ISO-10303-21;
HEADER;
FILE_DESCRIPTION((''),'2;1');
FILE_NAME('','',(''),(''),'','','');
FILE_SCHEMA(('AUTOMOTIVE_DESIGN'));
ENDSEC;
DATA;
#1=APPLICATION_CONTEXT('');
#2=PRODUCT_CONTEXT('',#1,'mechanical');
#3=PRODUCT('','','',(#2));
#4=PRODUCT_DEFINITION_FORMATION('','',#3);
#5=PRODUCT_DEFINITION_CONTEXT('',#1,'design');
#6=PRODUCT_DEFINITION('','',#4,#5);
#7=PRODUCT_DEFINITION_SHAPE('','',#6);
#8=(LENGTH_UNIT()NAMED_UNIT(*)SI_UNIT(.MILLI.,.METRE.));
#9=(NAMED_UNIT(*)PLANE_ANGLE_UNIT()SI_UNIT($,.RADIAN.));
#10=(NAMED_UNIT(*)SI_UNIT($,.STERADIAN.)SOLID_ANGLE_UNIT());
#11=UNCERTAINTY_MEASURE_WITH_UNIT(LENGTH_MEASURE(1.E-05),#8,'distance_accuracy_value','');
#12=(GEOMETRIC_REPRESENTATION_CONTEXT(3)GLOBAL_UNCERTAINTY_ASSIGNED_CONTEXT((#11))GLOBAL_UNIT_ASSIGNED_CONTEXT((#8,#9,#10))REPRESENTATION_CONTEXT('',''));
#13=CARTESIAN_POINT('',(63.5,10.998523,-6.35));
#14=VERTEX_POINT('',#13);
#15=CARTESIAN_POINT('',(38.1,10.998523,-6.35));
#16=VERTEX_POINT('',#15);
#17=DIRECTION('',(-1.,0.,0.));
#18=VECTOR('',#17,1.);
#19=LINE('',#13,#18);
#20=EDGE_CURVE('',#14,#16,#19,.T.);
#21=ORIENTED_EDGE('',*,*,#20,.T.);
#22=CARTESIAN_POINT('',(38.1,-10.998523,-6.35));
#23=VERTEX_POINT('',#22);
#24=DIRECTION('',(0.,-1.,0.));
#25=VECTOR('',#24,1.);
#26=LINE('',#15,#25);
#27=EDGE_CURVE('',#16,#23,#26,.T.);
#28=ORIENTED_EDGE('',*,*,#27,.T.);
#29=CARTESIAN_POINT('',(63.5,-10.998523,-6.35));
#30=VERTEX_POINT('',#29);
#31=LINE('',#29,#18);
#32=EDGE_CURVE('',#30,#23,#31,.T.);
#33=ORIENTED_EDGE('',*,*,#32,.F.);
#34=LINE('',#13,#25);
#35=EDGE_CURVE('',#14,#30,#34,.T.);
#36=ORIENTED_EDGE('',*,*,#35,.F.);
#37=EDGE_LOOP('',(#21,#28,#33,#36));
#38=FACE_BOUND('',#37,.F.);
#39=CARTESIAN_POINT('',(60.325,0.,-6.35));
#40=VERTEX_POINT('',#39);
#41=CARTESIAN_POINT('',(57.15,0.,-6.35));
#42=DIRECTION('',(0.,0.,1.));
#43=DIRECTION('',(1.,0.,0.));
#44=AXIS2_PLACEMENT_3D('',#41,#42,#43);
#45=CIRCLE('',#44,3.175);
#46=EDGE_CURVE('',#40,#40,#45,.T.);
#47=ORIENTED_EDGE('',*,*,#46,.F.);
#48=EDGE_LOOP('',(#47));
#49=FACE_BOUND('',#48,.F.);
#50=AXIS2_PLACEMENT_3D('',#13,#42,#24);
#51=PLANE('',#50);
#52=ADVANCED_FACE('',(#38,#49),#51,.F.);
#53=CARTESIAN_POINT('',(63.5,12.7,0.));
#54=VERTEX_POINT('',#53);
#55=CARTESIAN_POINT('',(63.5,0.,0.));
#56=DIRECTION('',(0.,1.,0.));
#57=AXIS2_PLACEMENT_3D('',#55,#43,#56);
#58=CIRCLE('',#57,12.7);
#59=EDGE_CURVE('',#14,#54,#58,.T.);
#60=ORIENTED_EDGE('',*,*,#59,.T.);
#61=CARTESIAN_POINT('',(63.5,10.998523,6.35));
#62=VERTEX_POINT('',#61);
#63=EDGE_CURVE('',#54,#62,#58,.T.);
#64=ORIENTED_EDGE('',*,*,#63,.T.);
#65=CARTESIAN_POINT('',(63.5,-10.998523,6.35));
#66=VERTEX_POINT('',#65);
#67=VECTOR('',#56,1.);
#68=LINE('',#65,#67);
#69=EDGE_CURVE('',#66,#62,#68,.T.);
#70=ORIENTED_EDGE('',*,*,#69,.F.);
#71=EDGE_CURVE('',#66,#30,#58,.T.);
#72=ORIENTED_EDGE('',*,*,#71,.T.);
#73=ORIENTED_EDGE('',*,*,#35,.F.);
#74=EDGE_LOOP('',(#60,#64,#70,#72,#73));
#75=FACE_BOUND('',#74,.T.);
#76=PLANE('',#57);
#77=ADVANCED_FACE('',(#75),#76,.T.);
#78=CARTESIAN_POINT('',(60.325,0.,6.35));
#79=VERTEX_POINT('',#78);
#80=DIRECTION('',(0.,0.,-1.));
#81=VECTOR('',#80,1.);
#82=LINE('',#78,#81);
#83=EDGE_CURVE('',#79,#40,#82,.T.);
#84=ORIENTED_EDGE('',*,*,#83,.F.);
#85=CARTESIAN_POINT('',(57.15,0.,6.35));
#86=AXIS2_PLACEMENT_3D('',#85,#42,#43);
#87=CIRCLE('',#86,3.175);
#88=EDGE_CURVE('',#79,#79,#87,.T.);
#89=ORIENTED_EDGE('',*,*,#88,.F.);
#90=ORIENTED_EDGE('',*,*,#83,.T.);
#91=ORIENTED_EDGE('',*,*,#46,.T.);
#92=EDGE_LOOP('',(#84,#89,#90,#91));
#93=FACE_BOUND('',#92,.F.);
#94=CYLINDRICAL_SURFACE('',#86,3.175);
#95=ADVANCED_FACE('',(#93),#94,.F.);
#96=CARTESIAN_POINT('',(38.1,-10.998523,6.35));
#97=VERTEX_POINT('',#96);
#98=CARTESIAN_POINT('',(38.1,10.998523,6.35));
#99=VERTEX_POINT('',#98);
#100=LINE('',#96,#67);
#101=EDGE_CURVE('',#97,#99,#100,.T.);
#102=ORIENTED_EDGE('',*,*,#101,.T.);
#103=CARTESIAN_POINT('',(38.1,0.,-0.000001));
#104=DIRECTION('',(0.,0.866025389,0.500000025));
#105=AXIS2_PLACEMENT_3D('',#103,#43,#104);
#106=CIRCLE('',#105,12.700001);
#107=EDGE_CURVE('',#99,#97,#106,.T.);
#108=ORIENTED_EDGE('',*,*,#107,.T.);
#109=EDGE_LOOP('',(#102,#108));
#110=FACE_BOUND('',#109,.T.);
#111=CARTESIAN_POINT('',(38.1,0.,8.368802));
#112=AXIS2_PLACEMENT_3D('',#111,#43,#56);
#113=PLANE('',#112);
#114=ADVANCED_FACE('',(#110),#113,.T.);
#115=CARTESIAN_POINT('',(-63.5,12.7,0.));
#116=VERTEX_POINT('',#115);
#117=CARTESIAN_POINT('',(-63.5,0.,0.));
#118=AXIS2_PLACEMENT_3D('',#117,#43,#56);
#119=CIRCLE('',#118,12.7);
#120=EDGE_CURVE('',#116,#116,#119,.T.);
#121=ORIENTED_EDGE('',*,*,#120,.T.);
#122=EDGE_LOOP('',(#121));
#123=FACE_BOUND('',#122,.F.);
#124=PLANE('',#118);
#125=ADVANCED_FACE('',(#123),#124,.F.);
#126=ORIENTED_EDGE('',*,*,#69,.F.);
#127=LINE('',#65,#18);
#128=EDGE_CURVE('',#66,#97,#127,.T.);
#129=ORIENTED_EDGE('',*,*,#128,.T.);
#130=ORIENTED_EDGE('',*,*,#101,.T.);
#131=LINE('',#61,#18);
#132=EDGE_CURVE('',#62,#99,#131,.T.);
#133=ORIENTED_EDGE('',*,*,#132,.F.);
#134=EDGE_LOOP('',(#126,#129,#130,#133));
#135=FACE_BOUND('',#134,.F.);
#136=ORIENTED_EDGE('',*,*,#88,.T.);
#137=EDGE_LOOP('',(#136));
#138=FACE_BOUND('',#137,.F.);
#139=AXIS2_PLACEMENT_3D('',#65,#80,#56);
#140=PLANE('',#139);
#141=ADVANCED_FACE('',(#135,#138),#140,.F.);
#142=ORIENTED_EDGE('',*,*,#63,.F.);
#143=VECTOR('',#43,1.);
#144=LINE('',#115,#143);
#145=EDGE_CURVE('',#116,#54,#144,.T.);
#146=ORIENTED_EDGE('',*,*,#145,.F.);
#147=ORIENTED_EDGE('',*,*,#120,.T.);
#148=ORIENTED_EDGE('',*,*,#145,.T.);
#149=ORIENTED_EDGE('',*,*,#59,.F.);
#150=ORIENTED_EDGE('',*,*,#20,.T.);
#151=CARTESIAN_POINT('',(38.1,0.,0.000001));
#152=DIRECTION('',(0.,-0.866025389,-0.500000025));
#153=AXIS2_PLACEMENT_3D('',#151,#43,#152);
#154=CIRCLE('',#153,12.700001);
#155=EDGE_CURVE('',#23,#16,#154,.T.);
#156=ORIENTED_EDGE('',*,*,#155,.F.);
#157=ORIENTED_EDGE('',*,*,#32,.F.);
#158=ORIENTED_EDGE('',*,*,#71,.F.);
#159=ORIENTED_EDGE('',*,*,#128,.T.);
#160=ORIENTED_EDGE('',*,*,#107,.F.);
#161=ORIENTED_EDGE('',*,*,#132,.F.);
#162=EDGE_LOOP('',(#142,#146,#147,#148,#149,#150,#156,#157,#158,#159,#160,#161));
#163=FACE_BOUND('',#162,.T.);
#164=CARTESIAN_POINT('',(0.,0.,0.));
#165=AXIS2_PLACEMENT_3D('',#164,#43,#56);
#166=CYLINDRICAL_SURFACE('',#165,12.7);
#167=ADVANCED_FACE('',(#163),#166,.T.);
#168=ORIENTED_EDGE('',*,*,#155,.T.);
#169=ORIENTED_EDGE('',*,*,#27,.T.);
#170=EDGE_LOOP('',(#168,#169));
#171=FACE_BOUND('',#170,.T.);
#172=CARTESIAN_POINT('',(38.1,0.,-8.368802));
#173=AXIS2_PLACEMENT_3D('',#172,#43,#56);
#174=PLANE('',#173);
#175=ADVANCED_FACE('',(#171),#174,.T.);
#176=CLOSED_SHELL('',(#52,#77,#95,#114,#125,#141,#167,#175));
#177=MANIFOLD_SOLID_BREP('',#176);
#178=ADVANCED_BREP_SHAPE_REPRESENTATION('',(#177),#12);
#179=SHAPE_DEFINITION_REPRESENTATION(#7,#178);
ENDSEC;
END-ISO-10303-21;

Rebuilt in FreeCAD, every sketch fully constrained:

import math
import FreeCAD as App
import Part
import Sketcher

V = App.Vector
Q = App.Units.Quantity

doc = App.newDocument("Part")
params = doc.addObject("Spreadsheet::Sheet", "Params")
for row, (alias, value) in enumerate([
    ("sketch1_diameter", "1 in"),
    ("pad1_length", "5 in"),
    ("sketch2_radius", "0.5 in"),
    ("pocket1_length", "1 in"),
    ("sketch3_diameter", "0.25 in"),
], start=1):
    params.set(f"A{row}", alias)
    params.set(f"B{row}", "=" + value)
    params.setAlias(f"B{row}", alias)

body = doc.addObject("PartDesign::Body", "Body")

# Sketch on YZ plane
sketch1 = doc.addObject("Sketcher::SketchObject", "Sketch")
body.addObject(sketch1)
sketch1.AttachmentSupport = (doc.YZ_Plane, [""])
sketch1.MapMode = "FlatFace"
sketch1.addGeometry(Part.Circle(V(0, 0, 0), V(0, 0, 1), 12.7), False)
sketch1.addConstraint([
    Sketcher.Constraint("Coincident", 0, 3, -1, 1),
    Sketcher.Constraint("Diameter", 0, Q("1 in")),
])
sketch1.setExpression("Constraints[1]", "Params.sketch1_diameter")
pad1 = doc.addObject("PartDesign::Pad", "Pad")
body.addObject(pad1)
pad1.Profile = sketch1
pad1.setExpression("Length", "Params.pad1_length")
pad1.Midplane = True

# Sketch on YZ plane
sketch2 = doc.addObject("Sketcher::SketchObject", "Sketch001")
body.addObject(sketch2)
sketch2.AttachmentSupport = (doc.YZ_Plane, [""])
sketch2.MapMode = "FlatFace"
sketch2.AttachmentOffset = App.Placement(V(0, 0, 2.5 * 25.4), App.Rotation())
sketch2.addGeometry([
    Part.LineSegment(V(10.998523, -6.35, 0), V(-10.998523, -6.35, 0)),
    Part.ArcOfCircle(Part.Circle(V(0, 0.000001, 0), V(0, 0, 1), 12.700001), math.radians(-149.999998), math.radians(-30.000002)),
    Part.ArcOfCircle(Part.Circle(V(0, -0.000001, 0), V(0, 0, 1), 12.700001), math.radians(30.000002), math.radians(149.999998)),
    Part.LineSegment(V(-10.998523, 6.35, 0), V(10.998523, 6.35, 0)),
], False)
sketch2.addConstraint([
    Sketcher.Constraint("Coincident", 0, 1, 1, 2),
    Sketcher.Constraint("Coincident", 1, 1, 0, 2),
    Sketcher.Constraint("Coincident", 2, 1, 3, 2),
    Sketcher.Constraint("Coincident", 3, 1, 2, 2),
    Sketcher.Constraint("Horizontal", 0),
    Sketcher.Constraint("Horizontal", 3),
    Sketcher.Constraint("Coincident", 1, 3, -1, 1),
    Sketcher.Constraint("Coincident", 2, 3, -1, 1),
    Sketcher.Constraint("Equal", 1, 2),
    Sketcher.Constraint("Vertical", 0, 1, 2, 1),
    Sketcher.Constraint("Radius", 1, Q("0.5 in")),
    Sketcher.Constraint("DistanceY", 0, 1, 2, 1, Q("0.5 in")),
])
sketch2.setExpression("Constraints[10]", "Params.sketch2_radius")
pocket1 = doc.addObject("PartDesign::Pocket", "Pocket")
body.addObject(pocket1)
pocket1.Profile = sketch2
pocket1.setExpression("Length", "Params.pocket1_length")

# Sketch on XY plane
sketch3 = doc.addObject("Sketcher::SketchObject", "Sketch002")
body.addObject(sketch3)
sketch3.AttachmentSupport = (doc.XY_Plane, [""])
sketch3.MapMode = "FlatFace"
sketch3.AttachmentOffset = App.Placement(V(0, 0, 0.25 * 25.4), App.Rotation())
sketch3.addGeometry(Part.Circle(V(57.15, 0, 0), V(0, 0, 1), 3.175), False)
sketch3.addConstraint([
    Sketcher.Constraint("PointOnObject", 0, 3, -1),
    Sketcher.Constraint("Diameter", 0, Q("0.25 in")),
    Sketcher.Constraint("DistanceX", -1, 1, 0, 3, Q("2.25 in")),
])
sketch3.setExpression("Constraints[1]", "Params.sketch3_diameter")
pocket2 = doc.addObject("PartDesign::Pocket", "Pocket001")
body.addObject(pocket2)
pocket2.Profile = sketch3
pocket2.Type = "ThroughAll"

doc.recompute()
